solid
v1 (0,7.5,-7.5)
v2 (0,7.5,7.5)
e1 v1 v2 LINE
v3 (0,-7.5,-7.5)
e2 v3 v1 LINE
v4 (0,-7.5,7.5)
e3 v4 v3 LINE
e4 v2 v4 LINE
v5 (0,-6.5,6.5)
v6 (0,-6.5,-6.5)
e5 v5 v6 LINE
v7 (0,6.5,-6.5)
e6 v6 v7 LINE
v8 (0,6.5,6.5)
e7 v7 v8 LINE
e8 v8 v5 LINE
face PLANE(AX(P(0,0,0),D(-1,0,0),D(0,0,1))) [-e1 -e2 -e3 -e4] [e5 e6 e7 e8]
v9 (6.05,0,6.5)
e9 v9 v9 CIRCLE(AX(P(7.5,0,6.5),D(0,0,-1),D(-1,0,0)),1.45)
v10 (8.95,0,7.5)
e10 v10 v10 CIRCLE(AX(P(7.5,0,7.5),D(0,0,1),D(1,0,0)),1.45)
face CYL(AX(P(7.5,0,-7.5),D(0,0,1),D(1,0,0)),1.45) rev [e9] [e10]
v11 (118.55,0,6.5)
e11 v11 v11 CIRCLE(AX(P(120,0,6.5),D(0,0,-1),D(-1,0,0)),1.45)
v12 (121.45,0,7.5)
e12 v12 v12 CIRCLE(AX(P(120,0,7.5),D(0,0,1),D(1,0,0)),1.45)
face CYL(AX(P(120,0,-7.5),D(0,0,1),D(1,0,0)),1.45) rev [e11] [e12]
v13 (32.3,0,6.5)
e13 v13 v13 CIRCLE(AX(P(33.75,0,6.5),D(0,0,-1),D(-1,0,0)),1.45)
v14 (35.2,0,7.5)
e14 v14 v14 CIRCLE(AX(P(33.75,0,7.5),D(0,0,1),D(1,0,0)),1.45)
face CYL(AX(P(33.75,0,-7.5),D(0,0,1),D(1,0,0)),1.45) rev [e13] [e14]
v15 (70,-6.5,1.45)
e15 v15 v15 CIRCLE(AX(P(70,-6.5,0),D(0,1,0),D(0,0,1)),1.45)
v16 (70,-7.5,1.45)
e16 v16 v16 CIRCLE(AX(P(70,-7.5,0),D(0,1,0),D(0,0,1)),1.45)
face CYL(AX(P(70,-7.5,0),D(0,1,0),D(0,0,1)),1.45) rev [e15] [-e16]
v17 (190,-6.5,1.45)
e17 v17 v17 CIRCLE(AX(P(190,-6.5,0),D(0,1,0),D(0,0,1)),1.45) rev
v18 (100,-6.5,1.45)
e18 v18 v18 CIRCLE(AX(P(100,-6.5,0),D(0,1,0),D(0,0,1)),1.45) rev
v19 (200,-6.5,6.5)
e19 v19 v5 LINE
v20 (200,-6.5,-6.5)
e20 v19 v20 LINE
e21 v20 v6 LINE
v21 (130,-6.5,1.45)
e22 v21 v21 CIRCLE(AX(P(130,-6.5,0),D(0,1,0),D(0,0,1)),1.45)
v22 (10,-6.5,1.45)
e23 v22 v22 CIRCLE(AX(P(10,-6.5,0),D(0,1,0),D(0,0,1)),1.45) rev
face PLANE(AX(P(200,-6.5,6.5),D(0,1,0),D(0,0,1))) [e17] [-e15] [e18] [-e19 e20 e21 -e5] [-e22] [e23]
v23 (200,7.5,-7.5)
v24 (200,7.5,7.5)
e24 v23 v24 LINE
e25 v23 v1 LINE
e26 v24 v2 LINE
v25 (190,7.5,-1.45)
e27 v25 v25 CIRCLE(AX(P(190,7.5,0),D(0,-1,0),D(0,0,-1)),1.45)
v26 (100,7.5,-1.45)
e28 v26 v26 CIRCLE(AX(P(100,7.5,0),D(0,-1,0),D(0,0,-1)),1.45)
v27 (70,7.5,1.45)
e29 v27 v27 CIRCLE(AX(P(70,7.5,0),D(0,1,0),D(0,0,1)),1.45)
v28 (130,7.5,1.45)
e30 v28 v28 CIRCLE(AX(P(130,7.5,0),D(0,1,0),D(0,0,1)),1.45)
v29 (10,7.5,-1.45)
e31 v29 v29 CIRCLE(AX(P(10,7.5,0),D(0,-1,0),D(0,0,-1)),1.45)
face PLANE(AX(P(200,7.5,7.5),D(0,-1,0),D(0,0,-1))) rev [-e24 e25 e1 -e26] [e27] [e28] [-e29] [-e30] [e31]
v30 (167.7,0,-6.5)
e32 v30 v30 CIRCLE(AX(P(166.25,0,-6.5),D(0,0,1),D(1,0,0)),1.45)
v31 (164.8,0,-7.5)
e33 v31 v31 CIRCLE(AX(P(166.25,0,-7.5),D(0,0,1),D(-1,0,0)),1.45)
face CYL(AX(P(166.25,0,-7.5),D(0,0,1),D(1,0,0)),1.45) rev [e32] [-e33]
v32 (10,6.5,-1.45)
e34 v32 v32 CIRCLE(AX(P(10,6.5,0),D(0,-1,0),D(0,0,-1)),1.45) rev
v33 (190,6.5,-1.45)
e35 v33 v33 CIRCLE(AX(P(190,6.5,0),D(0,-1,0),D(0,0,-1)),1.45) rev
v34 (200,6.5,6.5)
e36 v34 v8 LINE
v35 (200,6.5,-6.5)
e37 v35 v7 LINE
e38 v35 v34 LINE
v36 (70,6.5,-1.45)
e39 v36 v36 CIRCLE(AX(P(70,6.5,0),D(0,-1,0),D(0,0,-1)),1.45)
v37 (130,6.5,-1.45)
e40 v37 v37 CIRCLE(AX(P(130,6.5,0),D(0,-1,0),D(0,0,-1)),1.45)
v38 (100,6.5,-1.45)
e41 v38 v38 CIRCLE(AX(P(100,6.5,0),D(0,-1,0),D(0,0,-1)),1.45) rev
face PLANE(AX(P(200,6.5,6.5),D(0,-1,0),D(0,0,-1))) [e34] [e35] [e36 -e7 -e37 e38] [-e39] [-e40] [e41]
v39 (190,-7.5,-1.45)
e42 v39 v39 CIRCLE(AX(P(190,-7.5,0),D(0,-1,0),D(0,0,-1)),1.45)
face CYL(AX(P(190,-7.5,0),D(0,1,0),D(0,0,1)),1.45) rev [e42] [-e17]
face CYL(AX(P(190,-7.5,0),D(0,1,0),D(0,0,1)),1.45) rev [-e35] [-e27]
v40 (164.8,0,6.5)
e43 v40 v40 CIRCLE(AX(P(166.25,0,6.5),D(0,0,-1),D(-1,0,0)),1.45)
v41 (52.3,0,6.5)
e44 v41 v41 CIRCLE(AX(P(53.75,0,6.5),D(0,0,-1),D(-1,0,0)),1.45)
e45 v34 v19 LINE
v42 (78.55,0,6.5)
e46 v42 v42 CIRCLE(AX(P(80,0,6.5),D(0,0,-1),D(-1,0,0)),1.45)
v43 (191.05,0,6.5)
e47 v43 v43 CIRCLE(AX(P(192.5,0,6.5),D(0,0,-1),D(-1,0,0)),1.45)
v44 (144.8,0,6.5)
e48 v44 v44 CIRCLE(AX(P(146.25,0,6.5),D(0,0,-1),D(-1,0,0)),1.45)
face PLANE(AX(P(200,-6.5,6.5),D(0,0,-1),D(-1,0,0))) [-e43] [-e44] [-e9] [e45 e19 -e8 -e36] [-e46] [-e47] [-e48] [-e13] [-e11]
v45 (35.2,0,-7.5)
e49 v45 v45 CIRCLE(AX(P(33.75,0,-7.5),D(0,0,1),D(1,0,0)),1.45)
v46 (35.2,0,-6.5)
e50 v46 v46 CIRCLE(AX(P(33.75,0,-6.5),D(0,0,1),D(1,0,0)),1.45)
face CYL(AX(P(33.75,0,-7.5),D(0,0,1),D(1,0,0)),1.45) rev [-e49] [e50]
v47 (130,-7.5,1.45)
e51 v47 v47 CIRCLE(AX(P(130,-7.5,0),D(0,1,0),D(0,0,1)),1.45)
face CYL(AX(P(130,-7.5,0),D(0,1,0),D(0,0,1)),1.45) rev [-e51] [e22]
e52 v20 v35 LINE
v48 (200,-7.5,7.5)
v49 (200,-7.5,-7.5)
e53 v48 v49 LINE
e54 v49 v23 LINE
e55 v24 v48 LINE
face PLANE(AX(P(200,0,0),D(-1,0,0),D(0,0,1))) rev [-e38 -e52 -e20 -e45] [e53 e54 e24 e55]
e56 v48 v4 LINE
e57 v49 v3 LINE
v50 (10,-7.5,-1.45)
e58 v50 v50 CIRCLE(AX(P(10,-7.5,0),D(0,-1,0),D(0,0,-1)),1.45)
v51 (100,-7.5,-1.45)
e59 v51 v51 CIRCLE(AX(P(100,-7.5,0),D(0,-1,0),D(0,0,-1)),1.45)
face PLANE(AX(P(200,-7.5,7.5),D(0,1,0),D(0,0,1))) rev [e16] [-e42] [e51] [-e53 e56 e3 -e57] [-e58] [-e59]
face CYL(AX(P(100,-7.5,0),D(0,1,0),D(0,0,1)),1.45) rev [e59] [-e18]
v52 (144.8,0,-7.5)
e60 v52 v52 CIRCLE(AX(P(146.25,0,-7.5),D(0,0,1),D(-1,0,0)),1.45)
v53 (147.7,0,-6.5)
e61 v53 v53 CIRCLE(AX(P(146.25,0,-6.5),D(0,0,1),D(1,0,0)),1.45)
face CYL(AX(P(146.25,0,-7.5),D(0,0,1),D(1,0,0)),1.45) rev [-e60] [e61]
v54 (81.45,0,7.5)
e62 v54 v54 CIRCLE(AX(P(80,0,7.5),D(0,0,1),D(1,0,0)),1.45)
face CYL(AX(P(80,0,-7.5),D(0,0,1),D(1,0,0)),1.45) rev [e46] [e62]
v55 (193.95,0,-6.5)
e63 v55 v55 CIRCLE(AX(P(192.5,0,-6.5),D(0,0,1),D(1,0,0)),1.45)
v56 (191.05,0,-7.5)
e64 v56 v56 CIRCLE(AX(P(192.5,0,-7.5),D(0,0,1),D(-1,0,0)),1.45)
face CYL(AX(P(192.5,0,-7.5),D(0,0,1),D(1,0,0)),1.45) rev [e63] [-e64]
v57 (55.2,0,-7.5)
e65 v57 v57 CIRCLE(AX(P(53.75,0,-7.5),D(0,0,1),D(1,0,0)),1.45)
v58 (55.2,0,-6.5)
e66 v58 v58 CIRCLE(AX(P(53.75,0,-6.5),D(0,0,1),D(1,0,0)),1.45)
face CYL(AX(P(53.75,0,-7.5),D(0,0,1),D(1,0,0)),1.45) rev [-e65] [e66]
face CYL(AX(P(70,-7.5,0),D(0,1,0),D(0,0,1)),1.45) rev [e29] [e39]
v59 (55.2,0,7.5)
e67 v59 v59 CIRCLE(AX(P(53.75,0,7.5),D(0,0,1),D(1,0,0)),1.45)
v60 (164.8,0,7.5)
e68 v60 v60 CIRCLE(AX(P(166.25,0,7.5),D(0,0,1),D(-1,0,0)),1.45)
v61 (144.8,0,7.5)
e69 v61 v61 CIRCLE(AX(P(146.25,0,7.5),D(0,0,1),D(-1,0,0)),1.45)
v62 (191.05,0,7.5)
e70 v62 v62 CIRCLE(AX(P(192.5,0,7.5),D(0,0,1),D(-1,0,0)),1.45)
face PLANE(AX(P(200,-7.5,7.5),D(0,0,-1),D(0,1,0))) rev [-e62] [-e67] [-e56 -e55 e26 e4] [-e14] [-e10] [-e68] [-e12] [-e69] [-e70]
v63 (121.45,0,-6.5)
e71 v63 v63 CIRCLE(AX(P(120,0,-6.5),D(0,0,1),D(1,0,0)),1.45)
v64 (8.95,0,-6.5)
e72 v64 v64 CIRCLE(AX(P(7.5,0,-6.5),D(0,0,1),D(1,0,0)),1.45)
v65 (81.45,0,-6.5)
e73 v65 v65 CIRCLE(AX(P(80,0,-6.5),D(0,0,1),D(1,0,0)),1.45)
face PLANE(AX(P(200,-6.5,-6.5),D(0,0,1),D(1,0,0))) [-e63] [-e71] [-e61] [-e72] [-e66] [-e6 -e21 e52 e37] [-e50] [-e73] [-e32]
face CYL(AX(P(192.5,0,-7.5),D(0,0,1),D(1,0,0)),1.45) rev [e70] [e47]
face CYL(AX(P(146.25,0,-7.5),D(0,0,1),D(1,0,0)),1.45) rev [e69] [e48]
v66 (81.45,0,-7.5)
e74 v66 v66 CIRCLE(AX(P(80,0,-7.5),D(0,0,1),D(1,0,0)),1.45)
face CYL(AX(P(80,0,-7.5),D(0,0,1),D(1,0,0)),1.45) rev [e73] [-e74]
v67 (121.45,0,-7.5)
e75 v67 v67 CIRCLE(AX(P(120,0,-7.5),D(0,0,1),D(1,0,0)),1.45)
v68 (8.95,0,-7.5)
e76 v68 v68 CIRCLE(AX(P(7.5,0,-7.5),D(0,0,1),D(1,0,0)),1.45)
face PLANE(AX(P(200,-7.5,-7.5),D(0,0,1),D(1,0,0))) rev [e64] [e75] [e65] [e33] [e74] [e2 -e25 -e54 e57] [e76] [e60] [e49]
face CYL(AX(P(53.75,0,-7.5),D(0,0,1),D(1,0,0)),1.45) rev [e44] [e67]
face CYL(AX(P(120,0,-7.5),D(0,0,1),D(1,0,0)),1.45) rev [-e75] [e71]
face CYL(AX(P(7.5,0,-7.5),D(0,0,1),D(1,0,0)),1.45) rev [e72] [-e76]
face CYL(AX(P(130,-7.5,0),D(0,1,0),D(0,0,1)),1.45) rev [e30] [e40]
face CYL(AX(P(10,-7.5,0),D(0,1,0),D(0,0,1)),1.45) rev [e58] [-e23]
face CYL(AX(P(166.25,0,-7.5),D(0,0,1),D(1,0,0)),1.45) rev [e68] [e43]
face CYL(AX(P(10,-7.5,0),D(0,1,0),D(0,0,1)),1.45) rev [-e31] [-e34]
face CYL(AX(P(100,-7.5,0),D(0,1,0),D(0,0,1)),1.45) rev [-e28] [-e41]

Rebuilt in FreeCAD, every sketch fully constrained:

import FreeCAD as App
import Part
import Sketcher
from FreeCAD import Vector

doc = App.newDocument("Part")
body = doc.addObject("PartDesign::Body", "Body")

sketch1 = body.newObject("Sketcher::SketchObject", "Sketch")
sketch1.AttachmentSupport = (doc.getObject("YZ_Plane"), [""])
sketch1.MapMode = "FlatFace"
sketch1.addGeometry([
    Part.LineSegment(Vector(8, 8, 0), Vector(-8, 8, 0)),
    Part.LineSegment(Vector(-8, 8, 0), Vector(-8, -8, 0)),
    Part.LineSegment(Vector(-8, -8, 0), Vector(8, -8, 0)),
    Part.LineSegment(Vector(8, -8, 0), Vector(8, 8, 0)),
    Part.LineSegment(Vector(-6, -6, 0), Vector(-6, 6, 0)),
    Part.LineSegment(Vector(-6, 6, 0), Vector(6, 6, 0)),
    Part.LineSegment(Vector(6, 6, 0), Vector(6, -6, 0)),
    Part.LineSegment(Vector(6, -6, 0), Vector(-6, -6, 0)),
], False)
sketch1.addConstraint([
    Sketcher.Constraint("Coincident", 0, 2, 1, 1),
    Sketcher.Constraint("Coincident", 1, 2, 2, 1),
    Sketcher.Constraint("Coincident", 2, 2, 3, 1),
    Sketcher.Constraint("Coincident", 3, 2, 0, 1),
    Sketcher.Constraint("Coincident", 4, 2, 5, 1),
    Sketcher.Constraint("Coincident", 5, 2, 6, 1),
    Sketcher.Constraint("Coincident", 6, 2, 7, 1),
    Sketcher.Constraint("Coincident", 7, 2, 4, 1),
    Sketcher.Constraint("Horizontal", 0),
    Sketcher.Constraint("Vertical", 1),
    Sketcher.Constraint("Horizontal", 2),
    Sketcher.Constraint("Vertical", 3),
    Sketcher.Constraint("Vertical", 4),
    Sketcher.Constraint("Horizontal", 5),
    Sketcher.Constraint("Vertical", 6),
    Sketcher.Constraint("Horizontal", 7),
    Sketcher.Constraint("Symmetric", 0, 2, 2, 2, -1, 1),
    Sketcher.Constraint("Symmetric", 4, 2, 6, 2, -1, 1),
    Sketcher.Constraint("Equal", 2, 1),
    Sketcher.Constraint("Equal", 7, 4),
    Sketcher.Constraint("DistanceX", 0, 2, 0, 1, 15.0),
    Sketcher.Constraint("DistanceX", 5, 1, 5, 2, 13.0),
])
pad1 = body.newObject("PartDesign::Pad", "Pad")
pad1.Profile = sketch1
pad1.Length = 200

sketch2 = body.newObject("Sketcher::SketchObject", "Sketch001")
sketch2.AttachmentSupport = (doc.getObject("XZ_Plane"), [""])
sketch2.MapMode = "FlatFace"
sketch2.AttachmentOffset = App.Placement(Vector(0, 0, -7.5), App.Rotation())
sketch2.addGeometry([
    Part.Circle(Vector(100, 0, 0), Vector(0, 0, 1), 1.4),
    Part.Circle(Vector(190, 0, 0), Vector(0, 0, 1), 1.4),
    Part.Circle(Vector(10, 0, 0), Vector(0, 0, 1), 1.4),
], False)
sketch2.addConstraint([
    Sketcher.Constraint("Equal", 0, 1),
    Sketcher.Constraint("Equal", 1, 2),
    Sketcher.Constraint("PointOnObject", 0, 3, -1),
    Sketcher.Constraint("PointOnObject", 1, 3, -1),
    Sketcher.Constraint("PointOnObject", 2, 3, -1),
    Sketcher.Constraint("Diameter", 0, 2.9),
    Sketcher.Constraint("DistanceX", -1, 1, 0, 3, 100.0),
    Sketcher.Constraint("DistanceX", -1, 1, 1, 3, 190.0),
    Sketcher.Constraint("DistanceX", -1, 1, 2, 3, 10.0),
])
pocket1 = body.newObject("PartDesign::Pocket", "Pocket")
pocket1.Profile = sketch2
pocket1.Type = "ThroughAll"
pocket1.Reversed = True

sketch3 = body.newObject("Sketcher::SketchObject", "Sketch002")
sketch3.AttachmentSupport = (doc.getObject("XY_Plane"), [""])
sketch3.MapMode = "FlatFace"
sketch3.AttachmentOffset = App.Placement(Vector(0, 0, 7.5), App.Rotation())
sketch3.addGeometry([
    Part.Circle(Vector(7.5, 0, 0), Vector(0, 0, 1), 1.4),
    Part.Circle(Vector(33.8, 0, 0), Vector(0, 0, 1), 1.4),
    Part.Circle(Vector(53.8, 0, 0), Vector(0, 0, 1), 1.4),
    Part.Circle(Vector(146.2, 0, 0), Vector(0, 0, 1), 1.4),
    Part.Circle(Vector(166.2, 0, 0), Vector(0, 0, 1), 1.4),
    Part.Circle(Vector(192.5, 0, 0), Vector(0, 0, 1), 1.4),
], False)
sketch3.addConstraint([
    Sketcher.Constraint("Equal", 0, 1),
    Sketcher.Constraint("Equal", 1, 2),
    Sketcher.Constraint("Equal", 2, 3),
    Sketcher.Constraint("Equal", 3, 4),
    Sketcher.Constraint("Equal", 4, 5),
    Sketcher.Constraint("PointOnObject", 0, 3, -1),
    Sketcher.Constraint("PointOnObject", 1, 3, -1),
    Sketcher.Constraint("PointOnObject", 2, 3, -1),
    Sketcher.Constraint("PointOnObject", 3, 3, -1),
    Sketcher.Constraint("PointOnObject", 4, 3, -1),
    Sketcher.Constraint("PointOnObject", 5, 3, -1),
    Sketcher.Constraint("Diameter", 0, 2.9),
    Sketcher.Constraint("DistanceX", 1, 3, 2, 3, 20.0),
    Sketcher.Constraint("DistanceX", 3, 3, 4, 3, 20.0),
    Sketcher.Constraint("DistanceX", 0, 3, 5, 3, 185.0),
    Sketcher.Constraint("DistanceX", -1, 1, 0, 3, 7.5),
    Sketcher.Constraint("DistanceX", 2, 3, 3, 3, 92.5),
    Sketcher.Constraint("DistanceX", -1, 1, 1, 3, 33.75),
])
pocket2 = body.newObject("PartDesign::Pocket", "Pocket001")
pocket2.Profile = sketch3
pocket2.Type = "ThroughAll"

sketch4 = body.newObject("Sketcher::SketchObject", "Sketch003")
sketch4.AttachmentSupport = (doc.getObject("XY_Plane"), [""])
sketch4.MapMode = "FlatFace"
sketch4.AttachmentOffset = App.Placement(Vector(0, 0, 7.5), App.Rotation())
sketch4.addGeometry([
    Part.Circle(Vector(80, 0, 0), Vector(0, 0, 1), 1.4),
    Part.Circle(Vector(120, 0, 0), Vector(0, 0, 1), 1.4),
], False)
sketch4.addConstraint([
    Sketcher.Constraint("Equal", 0, 1),
    Sketcher.Constraint("PointOnObject", 0, 3, -1),
    Sketcher.Constraint("PointOnObject", 1, 3, -1),
    Sketcher.Constraint("Diameter", 0, 2.9),
    Sketcher.Constraint("DistanceX", -1, 1, 0, 3, 80.0),
    Sketcher.Constraint("DistanceX", -1, 1, 1, 3, 120.0),
])
pocket3 = body.newObject("PartDesign::Pocket", "Pocket002")
pocket3.Profile = sketch4
pocket3.Type = "ThroughAll"

sketch5 = body.newObject("Sketcher::SketchObject", "Sketch004")
sketch5.AttachmentSupport = (doc.getObject("XZ_Plane"), [""])
sketch5.MapMode = "FlatFace"
sketch5.AttachmentOffset = App.Placement(Vector(0, 0, -7.5), App.Rotation())
sketch5.addGeometry([
    Part.Circle(Vector(70, 0, 0), Vector(0, 0, 1), 1.4),
    Part.Circle(Vector(130, 0, 0), Vector(0, 0, 1), 1.4),
], False)
sketch5.addConstraint([
    Sketcher.Constraint("Equal", 0, 1),
    Sketcher.Constraint("PointOnObject", 0, 3, -1),
    Sketcher.Constraint("PointOnObject", 1, 3, -1),
    Sketcher.Constraint("Diameter", 0, 2.9),
    Sketcher.Constraint("DistanceX", -1, 1, 0, 3, 70.0),
    Sketcher.Constraint("DistanceX", -1, 1, 1, 3, 130.0),
])
pocket4 = body.newObject("PartDesign::Pocket", "Pocket003")
pocket4.Profile = sketch5
pocket4.Type = "ThroughAll"
pocket4.Reversed = True

doc.recompute()
